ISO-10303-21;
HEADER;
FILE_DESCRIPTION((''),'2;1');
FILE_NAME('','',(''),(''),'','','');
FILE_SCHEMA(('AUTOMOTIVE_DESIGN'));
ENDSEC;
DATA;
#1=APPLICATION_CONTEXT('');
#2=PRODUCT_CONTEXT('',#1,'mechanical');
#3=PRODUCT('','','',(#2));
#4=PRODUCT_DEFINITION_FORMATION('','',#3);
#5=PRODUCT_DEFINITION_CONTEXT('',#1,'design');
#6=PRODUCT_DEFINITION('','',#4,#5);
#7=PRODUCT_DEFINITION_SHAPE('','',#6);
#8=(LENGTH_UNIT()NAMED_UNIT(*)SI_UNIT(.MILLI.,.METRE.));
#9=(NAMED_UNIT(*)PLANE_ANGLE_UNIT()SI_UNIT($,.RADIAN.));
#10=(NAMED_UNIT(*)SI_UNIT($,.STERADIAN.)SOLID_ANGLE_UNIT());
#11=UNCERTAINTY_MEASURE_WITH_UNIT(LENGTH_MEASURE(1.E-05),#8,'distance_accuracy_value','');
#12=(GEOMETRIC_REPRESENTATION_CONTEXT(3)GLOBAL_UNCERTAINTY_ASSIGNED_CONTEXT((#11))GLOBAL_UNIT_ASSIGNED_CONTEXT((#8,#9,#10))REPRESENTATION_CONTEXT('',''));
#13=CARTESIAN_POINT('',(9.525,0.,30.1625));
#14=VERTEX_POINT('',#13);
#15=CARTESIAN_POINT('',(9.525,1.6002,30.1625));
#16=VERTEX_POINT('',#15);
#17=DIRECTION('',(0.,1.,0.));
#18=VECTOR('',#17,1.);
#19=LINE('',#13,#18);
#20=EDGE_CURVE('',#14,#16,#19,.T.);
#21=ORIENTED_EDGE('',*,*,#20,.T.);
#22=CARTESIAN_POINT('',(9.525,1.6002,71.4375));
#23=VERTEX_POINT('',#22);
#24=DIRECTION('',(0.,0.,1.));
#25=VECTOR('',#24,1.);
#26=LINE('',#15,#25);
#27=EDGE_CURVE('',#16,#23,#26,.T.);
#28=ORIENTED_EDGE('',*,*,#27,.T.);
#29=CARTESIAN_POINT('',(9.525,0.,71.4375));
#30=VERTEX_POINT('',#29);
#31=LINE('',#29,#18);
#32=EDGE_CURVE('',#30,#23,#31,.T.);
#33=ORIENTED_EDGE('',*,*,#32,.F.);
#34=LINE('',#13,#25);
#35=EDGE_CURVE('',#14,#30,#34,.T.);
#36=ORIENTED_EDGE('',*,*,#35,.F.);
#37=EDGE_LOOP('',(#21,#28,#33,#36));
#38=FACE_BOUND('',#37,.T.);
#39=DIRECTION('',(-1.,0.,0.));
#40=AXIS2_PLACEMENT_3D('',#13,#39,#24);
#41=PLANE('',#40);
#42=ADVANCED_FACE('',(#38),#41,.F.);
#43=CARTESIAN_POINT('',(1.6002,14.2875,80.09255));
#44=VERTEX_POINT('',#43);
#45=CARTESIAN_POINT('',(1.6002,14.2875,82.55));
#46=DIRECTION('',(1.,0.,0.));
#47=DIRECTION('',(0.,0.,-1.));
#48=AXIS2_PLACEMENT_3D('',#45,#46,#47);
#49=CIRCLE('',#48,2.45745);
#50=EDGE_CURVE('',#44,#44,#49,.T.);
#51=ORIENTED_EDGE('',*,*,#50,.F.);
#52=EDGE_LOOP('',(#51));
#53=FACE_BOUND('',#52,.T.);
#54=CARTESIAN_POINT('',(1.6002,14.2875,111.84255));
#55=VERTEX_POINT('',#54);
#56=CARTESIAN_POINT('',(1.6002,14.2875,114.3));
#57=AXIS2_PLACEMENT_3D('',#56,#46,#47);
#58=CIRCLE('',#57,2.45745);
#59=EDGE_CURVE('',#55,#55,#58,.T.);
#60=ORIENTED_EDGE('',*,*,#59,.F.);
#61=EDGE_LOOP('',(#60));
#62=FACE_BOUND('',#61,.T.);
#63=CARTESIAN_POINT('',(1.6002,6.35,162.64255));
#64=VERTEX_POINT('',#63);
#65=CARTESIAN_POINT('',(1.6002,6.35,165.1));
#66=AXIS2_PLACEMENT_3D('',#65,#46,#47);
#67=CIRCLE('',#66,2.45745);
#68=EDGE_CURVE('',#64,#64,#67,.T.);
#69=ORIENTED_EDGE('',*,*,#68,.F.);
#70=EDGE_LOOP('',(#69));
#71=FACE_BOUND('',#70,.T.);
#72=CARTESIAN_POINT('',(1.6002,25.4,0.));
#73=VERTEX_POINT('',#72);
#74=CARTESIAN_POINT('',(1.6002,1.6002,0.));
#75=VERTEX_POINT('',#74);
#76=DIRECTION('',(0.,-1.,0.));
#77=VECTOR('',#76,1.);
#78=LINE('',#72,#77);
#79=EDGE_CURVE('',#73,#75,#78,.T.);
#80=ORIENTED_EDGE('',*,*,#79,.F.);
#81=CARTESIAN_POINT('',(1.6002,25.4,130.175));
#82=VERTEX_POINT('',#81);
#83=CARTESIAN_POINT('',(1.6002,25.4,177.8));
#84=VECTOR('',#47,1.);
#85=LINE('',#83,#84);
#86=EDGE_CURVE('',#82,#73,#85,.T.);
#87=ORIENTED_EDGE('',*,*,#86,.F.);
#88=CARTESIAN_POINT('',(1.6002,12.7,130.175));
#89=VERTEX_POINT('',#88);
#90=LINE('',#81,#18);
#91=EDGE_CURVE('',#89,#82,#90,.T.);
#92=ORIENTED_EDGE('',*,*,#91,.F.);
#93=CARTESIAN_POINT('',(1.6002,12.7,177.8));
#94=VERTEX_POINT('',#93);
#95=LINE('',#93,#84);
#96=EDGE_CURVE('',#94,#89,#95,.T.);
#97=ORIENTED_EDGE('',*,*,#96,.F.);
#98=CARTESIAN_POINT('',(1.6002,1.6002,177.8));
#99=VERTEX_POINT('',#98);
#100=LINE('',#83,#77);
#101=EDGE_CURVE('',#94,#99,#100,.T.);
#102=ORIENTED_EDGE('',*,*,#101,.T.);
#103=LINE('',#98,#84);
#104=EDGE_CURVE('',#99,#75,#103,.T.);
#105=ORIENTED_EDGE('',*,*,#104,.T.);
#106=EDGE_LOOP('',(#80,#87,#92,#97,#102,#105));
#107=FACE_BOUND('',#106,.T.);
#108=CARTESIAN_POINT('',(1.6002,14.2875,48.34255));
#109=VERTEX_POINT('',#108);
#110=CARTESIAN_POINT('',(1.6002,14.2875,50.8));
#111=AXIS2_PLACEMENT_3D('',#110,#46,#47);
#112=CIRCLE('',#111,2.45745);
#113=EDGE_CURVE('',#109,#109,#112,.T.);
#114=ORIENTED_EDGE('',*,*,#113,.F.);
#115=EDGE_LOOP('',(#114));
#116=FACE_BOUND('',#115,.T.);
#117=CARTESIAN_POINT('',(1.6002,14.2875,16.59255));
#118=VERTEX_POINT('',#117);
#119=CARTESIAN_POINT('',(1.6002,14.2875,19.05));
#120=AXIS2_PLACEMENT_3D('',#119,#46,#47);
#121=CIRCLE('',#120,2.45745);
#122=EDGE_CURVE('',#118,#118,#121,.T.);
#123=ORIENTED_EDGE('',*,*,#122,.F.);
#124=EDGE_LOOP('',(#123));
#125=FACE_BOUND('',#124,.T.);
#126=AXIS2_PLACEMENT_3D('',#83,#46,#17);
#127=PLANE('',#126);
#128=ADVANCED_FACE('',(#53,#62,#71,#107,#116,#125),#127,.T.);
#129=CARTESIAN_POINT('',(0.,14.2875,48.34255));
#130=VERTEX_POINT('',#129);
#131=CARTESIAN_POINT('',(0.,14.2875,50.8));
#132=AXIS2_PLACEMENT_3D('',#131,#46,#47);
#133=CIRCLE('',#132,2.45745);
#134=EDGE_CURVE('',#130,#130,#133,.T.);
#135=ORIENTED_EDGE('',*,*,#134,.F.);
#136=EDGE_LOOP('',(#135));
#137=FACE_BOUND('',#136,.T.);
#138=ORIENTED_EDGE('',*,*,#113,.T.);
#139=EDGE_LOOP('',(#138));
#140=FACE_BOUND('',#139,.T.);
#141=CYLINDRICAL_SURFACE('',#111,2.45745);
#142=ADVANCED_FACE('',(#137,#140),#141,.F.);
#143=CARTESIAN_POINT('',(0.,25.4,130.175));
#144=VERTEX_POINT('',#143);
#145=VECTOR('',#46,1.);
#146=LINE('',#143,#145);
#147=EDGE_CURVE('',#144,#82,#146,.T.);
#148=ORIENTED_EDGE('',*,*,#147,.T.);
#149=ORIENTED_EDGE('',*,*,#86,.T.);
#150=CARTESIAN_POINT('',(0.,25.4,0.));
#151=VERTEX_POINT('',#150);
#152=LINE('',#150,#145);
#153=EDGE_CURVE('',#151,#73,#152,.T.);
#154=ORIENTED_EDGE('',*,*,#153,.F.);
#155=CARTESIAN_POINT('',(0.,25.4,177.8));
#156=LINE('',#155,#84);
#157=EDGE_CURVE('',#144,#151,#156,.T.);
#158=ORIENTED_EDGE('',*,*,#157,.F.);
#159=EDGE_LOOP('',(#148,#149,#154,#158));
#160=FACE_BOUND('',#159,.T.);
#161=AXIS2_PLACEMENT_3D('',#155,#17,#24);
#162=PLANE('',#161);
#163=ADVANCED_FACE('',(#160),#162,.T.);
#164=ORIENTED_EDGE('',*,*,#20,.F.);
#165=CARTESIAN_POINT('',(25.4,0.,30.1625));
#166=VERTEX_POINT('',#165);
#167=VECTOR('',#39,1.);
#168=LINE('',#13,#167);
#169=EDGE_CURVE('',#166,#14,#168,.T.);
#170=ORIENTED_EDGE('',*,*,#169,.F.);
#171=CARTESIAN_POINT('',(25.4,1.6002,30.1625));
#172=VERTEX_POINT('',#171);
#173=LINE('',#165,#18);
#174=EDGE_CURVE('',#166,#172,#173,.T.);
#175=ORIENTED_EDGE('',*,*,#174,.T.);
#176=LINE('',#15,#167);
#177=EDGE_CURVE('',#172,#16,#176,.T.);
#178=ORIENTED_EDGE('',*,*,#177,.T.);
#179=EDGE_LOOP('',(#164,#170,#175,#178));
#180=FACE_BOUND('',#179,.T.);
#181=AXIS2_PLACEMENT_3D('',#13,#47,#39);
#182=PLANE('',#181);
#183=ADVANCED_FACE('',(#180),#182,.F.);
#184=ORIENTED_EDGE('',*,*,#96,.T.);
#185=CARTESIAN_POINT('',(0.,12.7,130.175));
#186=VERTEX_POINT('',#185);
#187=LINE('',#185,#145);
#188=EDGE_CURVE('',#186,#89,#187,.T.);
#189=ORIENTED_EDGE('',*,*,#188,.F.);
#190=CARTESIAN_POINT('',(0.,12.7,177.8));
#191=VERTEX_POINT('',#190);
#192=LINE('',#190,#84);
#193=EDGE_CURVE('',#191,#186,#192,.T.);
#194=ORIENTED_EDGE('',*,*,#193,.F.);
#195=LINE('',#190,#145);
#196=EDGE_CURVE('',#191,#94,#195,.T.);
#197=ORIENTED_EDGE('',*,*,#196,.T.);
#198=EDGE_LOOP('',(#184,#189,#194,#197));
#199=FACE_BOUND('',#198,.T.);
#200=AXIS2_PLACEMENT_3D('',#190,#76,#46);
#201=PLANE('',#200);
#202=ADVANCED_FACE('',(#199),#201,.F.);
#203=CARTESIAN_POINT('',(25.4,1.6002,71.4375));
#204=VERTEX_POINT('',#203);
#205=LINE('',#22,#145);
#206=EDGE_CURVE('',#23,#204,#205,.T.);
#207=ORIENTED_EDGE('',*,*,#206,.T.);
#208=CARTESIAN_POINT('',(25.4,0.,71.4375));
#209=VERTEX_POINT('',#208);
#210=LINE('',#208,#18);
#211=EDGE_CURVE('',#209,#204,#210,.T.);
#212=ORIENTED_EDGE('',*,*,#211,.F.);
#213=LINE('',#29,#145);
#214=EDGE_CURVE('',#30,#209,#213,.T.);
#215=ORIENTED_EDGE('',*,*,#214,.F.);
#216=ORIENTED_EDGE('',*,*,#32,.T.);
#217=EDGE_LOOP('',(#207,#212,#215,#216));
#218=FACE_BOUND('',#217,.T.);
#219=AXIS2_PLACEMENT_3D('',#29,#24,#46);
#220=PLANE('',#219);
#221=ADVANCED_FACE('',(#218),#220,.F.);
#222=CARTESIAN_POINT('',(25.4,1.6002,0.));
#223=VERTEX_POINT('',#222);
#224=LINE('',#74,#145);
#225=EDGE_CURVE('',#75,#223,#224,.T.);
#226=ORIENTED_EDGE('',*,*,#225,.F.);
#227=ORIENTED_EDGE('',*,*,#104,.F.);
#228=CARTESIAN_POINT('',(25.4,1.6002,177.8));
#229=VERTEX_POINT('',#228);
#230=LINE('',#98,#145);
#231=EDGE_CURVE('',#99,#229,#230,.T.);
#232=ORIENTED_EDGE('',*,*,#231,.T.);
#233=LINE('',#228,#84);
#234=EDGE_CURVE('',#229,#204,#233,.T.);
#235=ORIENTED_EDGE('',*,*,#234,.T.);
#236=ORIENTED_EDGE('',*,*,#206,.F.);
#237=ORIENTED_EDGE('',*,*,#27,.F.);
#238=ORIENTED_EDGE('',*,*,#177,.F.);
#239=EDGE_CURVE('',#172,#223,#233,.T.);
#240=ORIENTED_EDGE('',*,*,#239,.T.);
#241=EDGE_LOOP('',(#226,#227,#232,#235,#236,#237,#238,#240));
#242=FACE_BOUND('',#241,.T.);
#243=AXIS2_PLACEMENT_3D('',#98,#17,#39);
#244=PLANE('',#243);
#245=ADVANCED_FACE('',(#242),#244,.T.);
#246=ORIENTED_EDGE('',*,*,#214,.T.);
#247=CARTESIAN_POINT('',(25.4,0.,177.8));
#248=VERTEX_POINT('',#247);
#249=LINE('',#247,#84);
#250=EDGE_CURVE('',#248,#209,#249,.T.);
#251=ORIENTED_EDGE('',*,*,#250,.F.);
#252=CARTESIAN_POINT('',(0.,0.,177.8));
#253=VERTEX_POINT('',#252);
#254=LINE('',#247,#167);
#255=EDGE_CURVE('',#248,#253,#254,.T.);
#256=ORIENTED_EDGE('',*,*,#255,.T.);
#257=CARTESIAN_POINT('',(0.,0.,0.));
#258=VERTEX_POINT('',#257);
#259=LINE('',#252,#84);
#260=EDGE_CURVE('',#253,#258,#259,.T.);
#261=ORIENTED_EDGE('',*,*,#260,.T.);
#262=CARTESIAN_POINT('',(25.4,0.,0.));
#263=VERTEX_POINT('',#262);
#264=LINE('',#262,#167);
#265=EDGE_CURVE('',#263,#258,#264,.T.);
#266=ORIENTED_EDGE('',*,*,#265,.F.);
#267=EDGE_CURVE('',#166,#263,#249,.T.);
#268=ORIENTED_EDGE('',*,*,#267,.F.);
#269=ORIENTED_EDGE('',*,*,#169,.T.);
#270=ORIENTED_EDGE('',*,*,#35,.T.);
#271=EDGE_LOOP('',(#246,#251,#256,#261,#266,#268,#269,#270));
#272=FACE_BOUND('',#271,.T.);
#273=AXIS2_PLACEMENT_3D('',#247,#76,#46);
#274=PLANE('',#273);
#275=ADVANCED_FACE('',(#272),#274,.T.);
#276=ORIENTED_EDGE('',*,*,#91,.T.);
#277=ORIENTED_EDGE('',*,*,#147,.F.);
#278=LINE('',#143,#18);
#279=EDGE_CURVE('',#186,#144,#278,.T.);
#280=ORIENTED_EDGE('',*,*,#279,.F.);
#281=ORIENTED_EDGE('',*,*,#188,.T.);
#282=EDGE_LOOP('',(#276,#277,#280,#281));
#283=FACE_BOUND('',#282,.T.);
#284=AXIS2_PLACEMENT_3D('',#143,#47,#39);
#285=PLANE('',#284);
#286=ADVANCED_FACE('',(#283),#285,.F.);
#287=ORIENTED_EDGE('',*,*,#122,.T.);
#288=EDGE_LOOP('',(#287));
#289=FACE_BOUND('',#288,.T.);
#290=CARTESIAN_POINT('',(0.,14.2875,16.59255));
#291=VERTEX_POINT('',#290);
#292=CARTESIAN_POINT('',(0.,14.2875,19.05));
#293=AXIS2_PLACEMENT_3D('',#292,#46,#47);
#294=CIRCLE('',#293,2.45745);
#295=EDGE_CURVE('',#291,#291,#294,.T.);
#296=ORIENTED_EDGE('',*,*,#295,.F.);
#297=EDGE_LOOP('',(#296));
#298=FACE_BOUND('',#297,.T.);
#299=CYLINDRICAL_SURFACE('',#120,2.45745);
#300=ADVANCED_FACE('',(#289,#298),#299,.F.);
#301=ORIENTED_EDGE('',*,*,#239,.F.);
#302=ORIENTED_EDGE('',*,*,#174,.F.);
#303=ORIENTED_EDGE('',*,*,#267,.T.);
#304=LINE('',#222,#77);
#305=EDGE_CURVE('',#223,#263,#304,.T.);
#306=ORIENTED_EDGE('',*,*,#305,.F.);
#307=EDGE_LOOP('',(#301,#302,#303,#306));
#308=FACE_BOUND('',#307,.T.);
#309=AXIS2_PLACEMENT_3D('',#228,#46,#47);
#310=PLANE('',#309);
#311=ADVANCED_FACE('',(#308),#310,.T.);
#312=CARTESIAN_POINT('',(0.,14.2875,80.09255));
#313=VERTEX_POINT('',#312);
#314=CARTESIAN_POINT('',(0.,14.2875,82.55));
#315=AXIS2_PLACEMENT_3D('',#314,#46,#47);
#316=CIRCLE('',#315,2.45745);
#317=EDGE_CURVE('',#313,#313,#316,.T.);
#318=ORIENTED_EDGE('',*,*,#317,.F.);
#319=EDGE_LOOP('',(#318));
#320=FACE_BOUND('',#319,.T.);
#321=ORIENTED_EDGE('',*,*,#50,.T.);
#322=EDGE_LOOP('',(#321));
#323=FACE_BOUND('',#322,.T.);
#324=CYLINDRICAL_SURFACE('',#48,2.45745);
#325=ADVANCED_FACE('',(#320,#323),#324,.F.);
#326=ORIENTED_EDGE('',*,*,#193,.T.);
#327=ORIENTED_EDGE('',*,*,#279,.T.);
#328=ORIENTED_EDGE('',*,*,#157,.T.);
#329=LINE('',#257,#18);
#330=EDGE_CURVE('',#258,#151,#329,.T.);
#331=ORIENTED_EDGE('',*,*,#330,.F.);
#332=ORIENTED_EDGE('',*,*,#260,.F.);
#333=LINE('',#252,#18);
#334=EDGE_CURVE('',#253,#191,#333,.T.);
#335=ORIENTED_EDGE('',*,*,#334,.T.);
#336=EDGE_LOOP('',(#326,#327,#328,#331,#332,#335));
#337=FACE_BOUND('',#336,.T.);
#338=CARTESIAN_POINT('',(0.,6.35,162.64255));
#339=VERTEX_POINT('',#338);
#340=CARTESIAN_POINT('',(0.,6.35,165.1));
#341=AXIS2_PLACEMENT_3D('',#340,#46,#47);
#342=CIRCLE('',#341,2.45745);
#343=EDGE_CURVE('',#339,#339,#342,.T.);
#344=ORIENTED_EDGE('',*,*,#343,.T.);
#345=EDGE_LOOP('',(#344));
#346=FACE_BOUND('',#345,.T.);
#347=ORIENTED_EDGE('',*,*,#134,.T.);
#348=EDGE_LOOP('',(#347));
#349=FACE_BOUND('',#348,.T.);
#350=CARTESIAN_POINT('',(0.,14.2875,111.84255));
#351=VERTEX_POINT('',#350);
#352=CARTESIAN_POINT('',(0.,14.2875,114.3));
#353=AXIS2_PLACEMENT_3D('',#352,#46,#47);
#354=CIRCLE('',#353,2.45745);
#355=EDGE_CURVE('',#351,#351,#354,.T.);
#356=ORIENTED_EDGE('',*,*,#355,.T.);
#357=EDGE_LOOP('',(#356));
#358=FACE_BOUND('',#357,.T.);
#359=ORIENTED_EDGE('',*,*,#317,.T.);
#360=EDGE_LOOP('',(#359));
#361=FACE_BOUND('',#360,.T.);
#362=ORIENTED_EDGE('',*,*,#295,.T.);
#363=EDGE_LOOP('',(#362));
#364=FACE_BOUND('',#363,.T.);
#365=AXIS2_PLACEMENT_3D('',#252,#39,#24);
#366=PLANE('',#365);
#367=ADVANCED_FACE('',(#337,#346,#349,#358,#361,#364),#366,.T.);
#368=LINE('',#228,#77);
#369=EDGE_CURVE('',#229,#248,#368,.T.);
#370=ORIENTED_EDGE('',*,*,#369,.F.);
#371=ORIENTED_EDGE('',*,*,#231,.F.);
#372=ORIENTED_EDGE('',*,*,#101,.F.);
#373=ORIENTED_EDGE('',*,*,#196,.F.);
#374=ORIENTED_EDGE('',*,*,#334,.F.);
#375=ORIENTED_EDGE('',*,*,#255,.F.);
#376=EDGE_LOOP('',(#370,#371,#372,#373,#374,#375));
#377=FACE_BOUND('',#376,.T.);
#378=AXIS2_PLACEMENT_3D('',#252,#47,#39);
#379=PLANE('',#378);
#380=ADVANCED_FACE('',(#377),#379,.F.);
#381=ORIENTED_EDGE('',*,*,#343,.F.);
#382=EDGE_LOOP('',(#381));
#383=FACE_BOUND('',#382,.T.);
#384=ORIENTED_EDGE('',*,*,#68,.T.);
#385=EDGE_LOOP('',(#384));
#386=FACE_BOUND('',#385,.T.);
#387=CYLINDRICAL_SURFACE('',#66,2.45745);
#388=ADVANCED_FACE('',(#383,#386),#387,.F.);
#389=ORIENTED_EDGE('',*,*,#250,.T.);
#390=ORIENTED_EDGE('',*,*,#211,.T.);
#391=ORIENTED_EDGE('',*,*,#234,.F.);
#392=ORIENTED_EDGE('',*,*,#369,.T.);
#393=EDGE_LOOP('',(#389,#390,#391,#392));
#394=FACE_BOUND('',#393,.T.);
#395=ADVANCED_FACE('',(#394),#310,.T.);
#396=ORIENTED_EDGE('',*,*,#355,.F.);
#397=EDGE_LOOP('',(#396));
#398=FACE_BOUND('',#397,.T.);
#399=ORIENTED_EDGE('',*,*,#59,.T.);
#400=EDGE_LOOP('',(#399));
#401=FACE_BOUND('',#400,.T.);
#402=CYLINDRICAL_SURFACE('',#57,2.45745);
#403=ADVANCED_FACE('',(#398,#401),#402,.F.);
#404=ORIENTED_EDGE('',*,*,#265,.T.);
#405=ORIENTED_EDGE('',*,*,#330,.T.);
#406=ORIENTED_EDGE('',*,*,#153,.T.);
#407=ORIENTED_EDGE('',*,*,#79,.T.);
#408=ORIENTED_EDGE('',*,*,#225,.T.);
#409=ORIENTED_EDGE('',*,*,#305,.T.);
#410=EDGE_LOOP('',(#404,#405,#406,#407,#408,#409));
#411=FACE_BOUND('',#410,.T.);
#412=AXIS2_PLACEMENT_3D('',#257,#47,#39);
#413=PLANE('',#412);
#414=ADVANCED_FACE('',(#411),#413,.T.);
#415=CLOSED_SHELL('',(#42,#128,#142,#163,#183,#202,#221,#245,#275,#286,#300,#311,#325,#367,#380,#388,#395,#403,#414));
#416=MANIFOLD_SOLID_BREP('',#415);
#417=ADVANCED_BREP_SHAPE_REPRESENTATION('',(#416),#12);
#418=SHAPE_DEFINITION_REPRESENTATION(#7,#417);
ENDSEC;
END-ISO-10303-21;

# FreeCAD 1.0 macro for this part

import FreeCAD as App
import Part
import Sketcher
Q = App.Units.Quantity

doc = App.newDocument("Part")
body = doc.addObject("PartDesign::Body", "Body")

sketch1 = body.newObject("Sketcher::SketchObject", "Sketch")
sketch1.AttachmentSupport = (doc.getObject("XY_Plane"), [""])
sketch1.MapMode = "FlatFace"
sketch1.addGeometry([
    Part.LineSegment(App.Vector(0, 25.4, 0), App.Vector(0, 0, 0)),
    Part.LineSegment(App.Vector(0, 0, 0), App.Vector(25.4, 0, 0)),
    Part.LineSegment(App.Vector(25.4, 0, 0), App.Vector(25.4, 1.6002, 0)),
    Part.LineSegment(App.Vector(25.4, 1.6002, 0), App.Vector(1.6002, 1.6002, 0)),
    Part.LineSegment(App.Vector(1.6002, 1.6002, 0), App.Vector(1.6002, 25.4, 0)),
    Part.LineSegment(App.Vector(1.6002, 25.4, 0), App.Vector(0, 25.4, 0)),
], False)
sketch1.addConstraint([
    Sketcher.Constraint("Coincident", 0, 2, 1, 1),
    Sketcher.Constraint("Coincident", 1, 2, 2, 1),
    Sketcher.Constraint("Coincident", 2, 2, 3, 1),
    Sketcher.Constraint("Coincident", 3, 2, 4, 1),
    Sketcher.Constraint("Coincident", 4, 2, 5, 1),
    Sketcher.Constraint("Coincident", 5, 2, 0, 1),
    Sketcher.Constraint("Vertical", 0),
    Sketcher.Constraint("Horizontal", 1),
    Sketcher.Constraint("Vertical", 2),
    Sketcher.Constraint("Horizontal", 3),
    Sketcher.Constraint("Vertical", 4),
    Sketcher.Constraint("Horizontal", 5),
    Sketcher.Constraint("Coincident", 0, 2, -1, 1),
    Sketcher.Constraint("Equal", 1, 0),
    Sketcher.Constraint("Equal", 5, 2),
    Sketcher.Constraint("DistanceX", 1, 1, 1, 2, Q("1 in")),
    Sketcher.Constraint("DistanceX", 3, 2, 3, 1, Q("0.937 in")),
])
pad1 = body.newObject("PartDesign::Pad", "Pad")
pad1.Profile = sketch1
pad1.Length = Q("7 in")

sketch2 = body.newObject("Sketcher::SketchObject", "Sketch001")
sketch2.AttachmentSupport = (doc.getObject("YZ_Plane"), [""])
sketch2.MapMode = "FlatFace"
sketch2.AttachmentOffset = App.Placement(App.Vector(0, 0, 0.063 * 25.4), App.Rotation())
sketch2.addGeometry([
    Part.Circle(App.Vector(14.2875, 82.55, 0), App.Vector(0, 0, 1), 2.45745),
    Part.Circle(App.Vector(14.2875, 50.8, 0), App.Vector(0, 0, 1), 2.45745),
    Part.Circle(App.Vector(14.2875, 19.05, 0), App.Vector(0, 0, 1), 2.45745),
    Part.Circle(App.Vector(14.2875, 114.3, 0), App.Vector(0, 0, 1), 2.45745),
], False)
sketch2.addConstraint([
    Sketcher.Constraint("Equal", 0, 1),
    Sketcher.Constraint("Equal", 1, 2),
    Sketcher.Constraint("Equal", 2, 3),
    Sketcher.Constraint("Vertical", 0, 3, 1, 3),
    Sketcher.Constraint("Vertical", 1, 3, 2, 3),
    Sketcher.Constraint("Vertical", 2, 3, 3, 3),
    Sketcher.Constraint("DistanceY", -1, 1, 1, 3, Q("2 in")),
    Sketcher.Constraint("Diameter", 0, Q("0.1935 in")),
    Sketcher.Constraint("DistanceY", -1, 1, 3, 3, Q("4.5 in")),
    Sketcher.Constraint("DistanceY", 2, 3, 0, 3, Q("2.5 in")),
    Sketcher.Constraint("DistanceY", -1, 1, 0, 3, Q("3.25 in")),
    Sketcher.Constraint("DistanceX", -1, 1, 0, 3, Q("0.5625 in")),
])
doc.recompute()
hole = body.newObject("PartDesign::Hole", "Hole")
hole.Profile = sketch2
hole.ThreadType = "None"
hole.Diameter = Q("0.1935 in")
hole.DepthType = "ThroughAll"

sketch3 = body.newObject("Sketcher::SketchObject", "Sketch002")
sketch3.AttachmentSupport = (doc.getObject("XZ_Plane"), [""])
sketch3.MapMode = "FlatFace"
sketch3.AttachmentOffset = App.Placement(App.Vector(0, 0, -0.063 * 25.4), App.Rotation())
sketch3.addGeometry([
    Part.LineSegment(App.Vector(9.525, 30.1625, 0), App.Vector(9.525, 71.4375, 0)),
    Part.LineSegment(App.Vector(9.525, 71.4375, 0), App.Vector(25.4, 71.4375, 0)),
    Part.LineSegment(App.Vector(25.4, 71.4375, 0), App.Vector(25.4, 30.1625, 0)),
    Part.LineSegment(App.Vector(25.4, 30.1625, 0), App.Vector(9.525, 30.1625, 0)),
], False)
sketch3.addConstraint([
    Sketcher.Constraint("Coincident", 0, 2, 1, 1),
    Sketcher.Constraint("Coincident", 1, 2, 2, 1),
    Sketcher.Constraint("Coincident", 2, 2, 3, 1),
    Sketcher.Constraint("Coincident", 3, 2, 0, 1),
    Sketcher.Constraint("Vertical", 0),
    Sketcher.Constraint("Horizontal", 1),
    Sketcher.Constraint("Vertical", 2),
    Sketcher.Constraint("Horizontal", 3),
    Sketcher.Constraint("DistanceX", -1, 1, 1, 2, Q("1 in")),
    Sketcher.Constraint("DistanceX", 1, 1, 1, 2, Q("0.625 in")),
    Sketcher.Constraint("DistanceY", 0, 1, 0, 2, Q("1.625 in")),
    Sketcher.Constraint("DistanceY", -1, 1, 0, 2, Q("2.8125 in")),
])
pocket1 = body.newObject("PartDesign::Pocket", "Pocket")
pocket1.Profile = sketch3
pocket1.Type = "ThroughAll"
pocket1.Reversed = True

sketch4 = body.newObject("Sketcher::SketchObject", "Sketch003")
sketch4.AttachmentSupport = (doc.getObject("YZ_Plane"), [""])
sketch4.MapMode = "FlatFace"
sketch4.AttachmentOffset = App.Placement(App.Vector(0, 0, 0.063 * 25.4), App.Rotation())
sketch4.addGeometry([
    Part.LineSegment(App.Vector(25.4, 177.8, 0), App.Vector(12.7, 177.8, 0)),
    Part.LineSegment(App.Vector(12.7, 177.8, 0), App.Vector(12.7, 130.175, 0)),
    Part.LineSegment(App.Vector(12.7, 130.175, 0), App.Vector(25.4, 130.175, 0)),
    Part.LineSegment(App.Vector(25.4, 130.175, 0), App.Vector(25.4, 177.8, 0)),
], False)
sketch4.addConstraint([
    Sketcher.Constraint("Coincident", 0, 2, 1, 1),
    Sketcher.Constraint("Coincident", 1, 2, 2, 1),
    Sketcher.Constraint("Coincident", 2, 2, 3, 1),
    Sketcher.Constraint("Coincident", 3, 2, 0, 1),
    Sketcher.Constraint("Horizontal", 0),
    Sketcher.Constraint("Vertical", 1),
    Sketcher.Constraint("Horizontal", 2),
    Sketcher.Constraint("Vertical", 3),
    Sketcher.Constraint("DistanceX", 0, 2, 0, 1, Q("0.5 in")),
    Sketcher.Constraint("DistanceY", -1, 1, 0, 2, Q("7 in")),
    Sketcher.Constraint("DistanceX", -1, 1, 2, 2, Q("1 in")),
    Sketcher.Constraint("DistanceY", 1, 2, 1, 1, Q("1.875 in")),
])
pocket2 = body.newObject("PartDesign::Pocket", "Pocket001")
pocket2.Profile = sketch4
pocket2.Type = "ThroughAll"

sketch5 = body.newObject("Sketcher::SketchObject", "Sketch004")
sketch5.AttachmentSupport = (doc.getObject("YZ_Plane"), [""])
sketch5.MapMode = "FlatFace"
sketch5.AttachmentOffset = App.Placement(App.Vector(0, 0, 0.063 * 25.4), App.Rotation())
sketch5.addGeometry(Part.Circle(App.Vector(6.35, 165.1, 0), App.Vector(0, 0, 1), 2.45745), False)
sketch5.addConstraint([
    Sketcher.Constraint("Diameter", 0, Q("0.1935 in")),
    Sketcher.Constraint("DistanceY", -1, 1, 0, 3, Q("6.5 in")),
    Sketcher.Constraint("DistanceX", -1, 1, 0, 3, Q("0.25 in")),
])
doc.recompute()
hole2 = body.newObject("PartDesign::Hole", "Hole001")
hole2.Profile = sketch5
hole2.ThreadType = "None"
hole2.Diameter = Q("0.1935 in")
hole2.DepthType = "ThroughAll"

doc.recompute()
